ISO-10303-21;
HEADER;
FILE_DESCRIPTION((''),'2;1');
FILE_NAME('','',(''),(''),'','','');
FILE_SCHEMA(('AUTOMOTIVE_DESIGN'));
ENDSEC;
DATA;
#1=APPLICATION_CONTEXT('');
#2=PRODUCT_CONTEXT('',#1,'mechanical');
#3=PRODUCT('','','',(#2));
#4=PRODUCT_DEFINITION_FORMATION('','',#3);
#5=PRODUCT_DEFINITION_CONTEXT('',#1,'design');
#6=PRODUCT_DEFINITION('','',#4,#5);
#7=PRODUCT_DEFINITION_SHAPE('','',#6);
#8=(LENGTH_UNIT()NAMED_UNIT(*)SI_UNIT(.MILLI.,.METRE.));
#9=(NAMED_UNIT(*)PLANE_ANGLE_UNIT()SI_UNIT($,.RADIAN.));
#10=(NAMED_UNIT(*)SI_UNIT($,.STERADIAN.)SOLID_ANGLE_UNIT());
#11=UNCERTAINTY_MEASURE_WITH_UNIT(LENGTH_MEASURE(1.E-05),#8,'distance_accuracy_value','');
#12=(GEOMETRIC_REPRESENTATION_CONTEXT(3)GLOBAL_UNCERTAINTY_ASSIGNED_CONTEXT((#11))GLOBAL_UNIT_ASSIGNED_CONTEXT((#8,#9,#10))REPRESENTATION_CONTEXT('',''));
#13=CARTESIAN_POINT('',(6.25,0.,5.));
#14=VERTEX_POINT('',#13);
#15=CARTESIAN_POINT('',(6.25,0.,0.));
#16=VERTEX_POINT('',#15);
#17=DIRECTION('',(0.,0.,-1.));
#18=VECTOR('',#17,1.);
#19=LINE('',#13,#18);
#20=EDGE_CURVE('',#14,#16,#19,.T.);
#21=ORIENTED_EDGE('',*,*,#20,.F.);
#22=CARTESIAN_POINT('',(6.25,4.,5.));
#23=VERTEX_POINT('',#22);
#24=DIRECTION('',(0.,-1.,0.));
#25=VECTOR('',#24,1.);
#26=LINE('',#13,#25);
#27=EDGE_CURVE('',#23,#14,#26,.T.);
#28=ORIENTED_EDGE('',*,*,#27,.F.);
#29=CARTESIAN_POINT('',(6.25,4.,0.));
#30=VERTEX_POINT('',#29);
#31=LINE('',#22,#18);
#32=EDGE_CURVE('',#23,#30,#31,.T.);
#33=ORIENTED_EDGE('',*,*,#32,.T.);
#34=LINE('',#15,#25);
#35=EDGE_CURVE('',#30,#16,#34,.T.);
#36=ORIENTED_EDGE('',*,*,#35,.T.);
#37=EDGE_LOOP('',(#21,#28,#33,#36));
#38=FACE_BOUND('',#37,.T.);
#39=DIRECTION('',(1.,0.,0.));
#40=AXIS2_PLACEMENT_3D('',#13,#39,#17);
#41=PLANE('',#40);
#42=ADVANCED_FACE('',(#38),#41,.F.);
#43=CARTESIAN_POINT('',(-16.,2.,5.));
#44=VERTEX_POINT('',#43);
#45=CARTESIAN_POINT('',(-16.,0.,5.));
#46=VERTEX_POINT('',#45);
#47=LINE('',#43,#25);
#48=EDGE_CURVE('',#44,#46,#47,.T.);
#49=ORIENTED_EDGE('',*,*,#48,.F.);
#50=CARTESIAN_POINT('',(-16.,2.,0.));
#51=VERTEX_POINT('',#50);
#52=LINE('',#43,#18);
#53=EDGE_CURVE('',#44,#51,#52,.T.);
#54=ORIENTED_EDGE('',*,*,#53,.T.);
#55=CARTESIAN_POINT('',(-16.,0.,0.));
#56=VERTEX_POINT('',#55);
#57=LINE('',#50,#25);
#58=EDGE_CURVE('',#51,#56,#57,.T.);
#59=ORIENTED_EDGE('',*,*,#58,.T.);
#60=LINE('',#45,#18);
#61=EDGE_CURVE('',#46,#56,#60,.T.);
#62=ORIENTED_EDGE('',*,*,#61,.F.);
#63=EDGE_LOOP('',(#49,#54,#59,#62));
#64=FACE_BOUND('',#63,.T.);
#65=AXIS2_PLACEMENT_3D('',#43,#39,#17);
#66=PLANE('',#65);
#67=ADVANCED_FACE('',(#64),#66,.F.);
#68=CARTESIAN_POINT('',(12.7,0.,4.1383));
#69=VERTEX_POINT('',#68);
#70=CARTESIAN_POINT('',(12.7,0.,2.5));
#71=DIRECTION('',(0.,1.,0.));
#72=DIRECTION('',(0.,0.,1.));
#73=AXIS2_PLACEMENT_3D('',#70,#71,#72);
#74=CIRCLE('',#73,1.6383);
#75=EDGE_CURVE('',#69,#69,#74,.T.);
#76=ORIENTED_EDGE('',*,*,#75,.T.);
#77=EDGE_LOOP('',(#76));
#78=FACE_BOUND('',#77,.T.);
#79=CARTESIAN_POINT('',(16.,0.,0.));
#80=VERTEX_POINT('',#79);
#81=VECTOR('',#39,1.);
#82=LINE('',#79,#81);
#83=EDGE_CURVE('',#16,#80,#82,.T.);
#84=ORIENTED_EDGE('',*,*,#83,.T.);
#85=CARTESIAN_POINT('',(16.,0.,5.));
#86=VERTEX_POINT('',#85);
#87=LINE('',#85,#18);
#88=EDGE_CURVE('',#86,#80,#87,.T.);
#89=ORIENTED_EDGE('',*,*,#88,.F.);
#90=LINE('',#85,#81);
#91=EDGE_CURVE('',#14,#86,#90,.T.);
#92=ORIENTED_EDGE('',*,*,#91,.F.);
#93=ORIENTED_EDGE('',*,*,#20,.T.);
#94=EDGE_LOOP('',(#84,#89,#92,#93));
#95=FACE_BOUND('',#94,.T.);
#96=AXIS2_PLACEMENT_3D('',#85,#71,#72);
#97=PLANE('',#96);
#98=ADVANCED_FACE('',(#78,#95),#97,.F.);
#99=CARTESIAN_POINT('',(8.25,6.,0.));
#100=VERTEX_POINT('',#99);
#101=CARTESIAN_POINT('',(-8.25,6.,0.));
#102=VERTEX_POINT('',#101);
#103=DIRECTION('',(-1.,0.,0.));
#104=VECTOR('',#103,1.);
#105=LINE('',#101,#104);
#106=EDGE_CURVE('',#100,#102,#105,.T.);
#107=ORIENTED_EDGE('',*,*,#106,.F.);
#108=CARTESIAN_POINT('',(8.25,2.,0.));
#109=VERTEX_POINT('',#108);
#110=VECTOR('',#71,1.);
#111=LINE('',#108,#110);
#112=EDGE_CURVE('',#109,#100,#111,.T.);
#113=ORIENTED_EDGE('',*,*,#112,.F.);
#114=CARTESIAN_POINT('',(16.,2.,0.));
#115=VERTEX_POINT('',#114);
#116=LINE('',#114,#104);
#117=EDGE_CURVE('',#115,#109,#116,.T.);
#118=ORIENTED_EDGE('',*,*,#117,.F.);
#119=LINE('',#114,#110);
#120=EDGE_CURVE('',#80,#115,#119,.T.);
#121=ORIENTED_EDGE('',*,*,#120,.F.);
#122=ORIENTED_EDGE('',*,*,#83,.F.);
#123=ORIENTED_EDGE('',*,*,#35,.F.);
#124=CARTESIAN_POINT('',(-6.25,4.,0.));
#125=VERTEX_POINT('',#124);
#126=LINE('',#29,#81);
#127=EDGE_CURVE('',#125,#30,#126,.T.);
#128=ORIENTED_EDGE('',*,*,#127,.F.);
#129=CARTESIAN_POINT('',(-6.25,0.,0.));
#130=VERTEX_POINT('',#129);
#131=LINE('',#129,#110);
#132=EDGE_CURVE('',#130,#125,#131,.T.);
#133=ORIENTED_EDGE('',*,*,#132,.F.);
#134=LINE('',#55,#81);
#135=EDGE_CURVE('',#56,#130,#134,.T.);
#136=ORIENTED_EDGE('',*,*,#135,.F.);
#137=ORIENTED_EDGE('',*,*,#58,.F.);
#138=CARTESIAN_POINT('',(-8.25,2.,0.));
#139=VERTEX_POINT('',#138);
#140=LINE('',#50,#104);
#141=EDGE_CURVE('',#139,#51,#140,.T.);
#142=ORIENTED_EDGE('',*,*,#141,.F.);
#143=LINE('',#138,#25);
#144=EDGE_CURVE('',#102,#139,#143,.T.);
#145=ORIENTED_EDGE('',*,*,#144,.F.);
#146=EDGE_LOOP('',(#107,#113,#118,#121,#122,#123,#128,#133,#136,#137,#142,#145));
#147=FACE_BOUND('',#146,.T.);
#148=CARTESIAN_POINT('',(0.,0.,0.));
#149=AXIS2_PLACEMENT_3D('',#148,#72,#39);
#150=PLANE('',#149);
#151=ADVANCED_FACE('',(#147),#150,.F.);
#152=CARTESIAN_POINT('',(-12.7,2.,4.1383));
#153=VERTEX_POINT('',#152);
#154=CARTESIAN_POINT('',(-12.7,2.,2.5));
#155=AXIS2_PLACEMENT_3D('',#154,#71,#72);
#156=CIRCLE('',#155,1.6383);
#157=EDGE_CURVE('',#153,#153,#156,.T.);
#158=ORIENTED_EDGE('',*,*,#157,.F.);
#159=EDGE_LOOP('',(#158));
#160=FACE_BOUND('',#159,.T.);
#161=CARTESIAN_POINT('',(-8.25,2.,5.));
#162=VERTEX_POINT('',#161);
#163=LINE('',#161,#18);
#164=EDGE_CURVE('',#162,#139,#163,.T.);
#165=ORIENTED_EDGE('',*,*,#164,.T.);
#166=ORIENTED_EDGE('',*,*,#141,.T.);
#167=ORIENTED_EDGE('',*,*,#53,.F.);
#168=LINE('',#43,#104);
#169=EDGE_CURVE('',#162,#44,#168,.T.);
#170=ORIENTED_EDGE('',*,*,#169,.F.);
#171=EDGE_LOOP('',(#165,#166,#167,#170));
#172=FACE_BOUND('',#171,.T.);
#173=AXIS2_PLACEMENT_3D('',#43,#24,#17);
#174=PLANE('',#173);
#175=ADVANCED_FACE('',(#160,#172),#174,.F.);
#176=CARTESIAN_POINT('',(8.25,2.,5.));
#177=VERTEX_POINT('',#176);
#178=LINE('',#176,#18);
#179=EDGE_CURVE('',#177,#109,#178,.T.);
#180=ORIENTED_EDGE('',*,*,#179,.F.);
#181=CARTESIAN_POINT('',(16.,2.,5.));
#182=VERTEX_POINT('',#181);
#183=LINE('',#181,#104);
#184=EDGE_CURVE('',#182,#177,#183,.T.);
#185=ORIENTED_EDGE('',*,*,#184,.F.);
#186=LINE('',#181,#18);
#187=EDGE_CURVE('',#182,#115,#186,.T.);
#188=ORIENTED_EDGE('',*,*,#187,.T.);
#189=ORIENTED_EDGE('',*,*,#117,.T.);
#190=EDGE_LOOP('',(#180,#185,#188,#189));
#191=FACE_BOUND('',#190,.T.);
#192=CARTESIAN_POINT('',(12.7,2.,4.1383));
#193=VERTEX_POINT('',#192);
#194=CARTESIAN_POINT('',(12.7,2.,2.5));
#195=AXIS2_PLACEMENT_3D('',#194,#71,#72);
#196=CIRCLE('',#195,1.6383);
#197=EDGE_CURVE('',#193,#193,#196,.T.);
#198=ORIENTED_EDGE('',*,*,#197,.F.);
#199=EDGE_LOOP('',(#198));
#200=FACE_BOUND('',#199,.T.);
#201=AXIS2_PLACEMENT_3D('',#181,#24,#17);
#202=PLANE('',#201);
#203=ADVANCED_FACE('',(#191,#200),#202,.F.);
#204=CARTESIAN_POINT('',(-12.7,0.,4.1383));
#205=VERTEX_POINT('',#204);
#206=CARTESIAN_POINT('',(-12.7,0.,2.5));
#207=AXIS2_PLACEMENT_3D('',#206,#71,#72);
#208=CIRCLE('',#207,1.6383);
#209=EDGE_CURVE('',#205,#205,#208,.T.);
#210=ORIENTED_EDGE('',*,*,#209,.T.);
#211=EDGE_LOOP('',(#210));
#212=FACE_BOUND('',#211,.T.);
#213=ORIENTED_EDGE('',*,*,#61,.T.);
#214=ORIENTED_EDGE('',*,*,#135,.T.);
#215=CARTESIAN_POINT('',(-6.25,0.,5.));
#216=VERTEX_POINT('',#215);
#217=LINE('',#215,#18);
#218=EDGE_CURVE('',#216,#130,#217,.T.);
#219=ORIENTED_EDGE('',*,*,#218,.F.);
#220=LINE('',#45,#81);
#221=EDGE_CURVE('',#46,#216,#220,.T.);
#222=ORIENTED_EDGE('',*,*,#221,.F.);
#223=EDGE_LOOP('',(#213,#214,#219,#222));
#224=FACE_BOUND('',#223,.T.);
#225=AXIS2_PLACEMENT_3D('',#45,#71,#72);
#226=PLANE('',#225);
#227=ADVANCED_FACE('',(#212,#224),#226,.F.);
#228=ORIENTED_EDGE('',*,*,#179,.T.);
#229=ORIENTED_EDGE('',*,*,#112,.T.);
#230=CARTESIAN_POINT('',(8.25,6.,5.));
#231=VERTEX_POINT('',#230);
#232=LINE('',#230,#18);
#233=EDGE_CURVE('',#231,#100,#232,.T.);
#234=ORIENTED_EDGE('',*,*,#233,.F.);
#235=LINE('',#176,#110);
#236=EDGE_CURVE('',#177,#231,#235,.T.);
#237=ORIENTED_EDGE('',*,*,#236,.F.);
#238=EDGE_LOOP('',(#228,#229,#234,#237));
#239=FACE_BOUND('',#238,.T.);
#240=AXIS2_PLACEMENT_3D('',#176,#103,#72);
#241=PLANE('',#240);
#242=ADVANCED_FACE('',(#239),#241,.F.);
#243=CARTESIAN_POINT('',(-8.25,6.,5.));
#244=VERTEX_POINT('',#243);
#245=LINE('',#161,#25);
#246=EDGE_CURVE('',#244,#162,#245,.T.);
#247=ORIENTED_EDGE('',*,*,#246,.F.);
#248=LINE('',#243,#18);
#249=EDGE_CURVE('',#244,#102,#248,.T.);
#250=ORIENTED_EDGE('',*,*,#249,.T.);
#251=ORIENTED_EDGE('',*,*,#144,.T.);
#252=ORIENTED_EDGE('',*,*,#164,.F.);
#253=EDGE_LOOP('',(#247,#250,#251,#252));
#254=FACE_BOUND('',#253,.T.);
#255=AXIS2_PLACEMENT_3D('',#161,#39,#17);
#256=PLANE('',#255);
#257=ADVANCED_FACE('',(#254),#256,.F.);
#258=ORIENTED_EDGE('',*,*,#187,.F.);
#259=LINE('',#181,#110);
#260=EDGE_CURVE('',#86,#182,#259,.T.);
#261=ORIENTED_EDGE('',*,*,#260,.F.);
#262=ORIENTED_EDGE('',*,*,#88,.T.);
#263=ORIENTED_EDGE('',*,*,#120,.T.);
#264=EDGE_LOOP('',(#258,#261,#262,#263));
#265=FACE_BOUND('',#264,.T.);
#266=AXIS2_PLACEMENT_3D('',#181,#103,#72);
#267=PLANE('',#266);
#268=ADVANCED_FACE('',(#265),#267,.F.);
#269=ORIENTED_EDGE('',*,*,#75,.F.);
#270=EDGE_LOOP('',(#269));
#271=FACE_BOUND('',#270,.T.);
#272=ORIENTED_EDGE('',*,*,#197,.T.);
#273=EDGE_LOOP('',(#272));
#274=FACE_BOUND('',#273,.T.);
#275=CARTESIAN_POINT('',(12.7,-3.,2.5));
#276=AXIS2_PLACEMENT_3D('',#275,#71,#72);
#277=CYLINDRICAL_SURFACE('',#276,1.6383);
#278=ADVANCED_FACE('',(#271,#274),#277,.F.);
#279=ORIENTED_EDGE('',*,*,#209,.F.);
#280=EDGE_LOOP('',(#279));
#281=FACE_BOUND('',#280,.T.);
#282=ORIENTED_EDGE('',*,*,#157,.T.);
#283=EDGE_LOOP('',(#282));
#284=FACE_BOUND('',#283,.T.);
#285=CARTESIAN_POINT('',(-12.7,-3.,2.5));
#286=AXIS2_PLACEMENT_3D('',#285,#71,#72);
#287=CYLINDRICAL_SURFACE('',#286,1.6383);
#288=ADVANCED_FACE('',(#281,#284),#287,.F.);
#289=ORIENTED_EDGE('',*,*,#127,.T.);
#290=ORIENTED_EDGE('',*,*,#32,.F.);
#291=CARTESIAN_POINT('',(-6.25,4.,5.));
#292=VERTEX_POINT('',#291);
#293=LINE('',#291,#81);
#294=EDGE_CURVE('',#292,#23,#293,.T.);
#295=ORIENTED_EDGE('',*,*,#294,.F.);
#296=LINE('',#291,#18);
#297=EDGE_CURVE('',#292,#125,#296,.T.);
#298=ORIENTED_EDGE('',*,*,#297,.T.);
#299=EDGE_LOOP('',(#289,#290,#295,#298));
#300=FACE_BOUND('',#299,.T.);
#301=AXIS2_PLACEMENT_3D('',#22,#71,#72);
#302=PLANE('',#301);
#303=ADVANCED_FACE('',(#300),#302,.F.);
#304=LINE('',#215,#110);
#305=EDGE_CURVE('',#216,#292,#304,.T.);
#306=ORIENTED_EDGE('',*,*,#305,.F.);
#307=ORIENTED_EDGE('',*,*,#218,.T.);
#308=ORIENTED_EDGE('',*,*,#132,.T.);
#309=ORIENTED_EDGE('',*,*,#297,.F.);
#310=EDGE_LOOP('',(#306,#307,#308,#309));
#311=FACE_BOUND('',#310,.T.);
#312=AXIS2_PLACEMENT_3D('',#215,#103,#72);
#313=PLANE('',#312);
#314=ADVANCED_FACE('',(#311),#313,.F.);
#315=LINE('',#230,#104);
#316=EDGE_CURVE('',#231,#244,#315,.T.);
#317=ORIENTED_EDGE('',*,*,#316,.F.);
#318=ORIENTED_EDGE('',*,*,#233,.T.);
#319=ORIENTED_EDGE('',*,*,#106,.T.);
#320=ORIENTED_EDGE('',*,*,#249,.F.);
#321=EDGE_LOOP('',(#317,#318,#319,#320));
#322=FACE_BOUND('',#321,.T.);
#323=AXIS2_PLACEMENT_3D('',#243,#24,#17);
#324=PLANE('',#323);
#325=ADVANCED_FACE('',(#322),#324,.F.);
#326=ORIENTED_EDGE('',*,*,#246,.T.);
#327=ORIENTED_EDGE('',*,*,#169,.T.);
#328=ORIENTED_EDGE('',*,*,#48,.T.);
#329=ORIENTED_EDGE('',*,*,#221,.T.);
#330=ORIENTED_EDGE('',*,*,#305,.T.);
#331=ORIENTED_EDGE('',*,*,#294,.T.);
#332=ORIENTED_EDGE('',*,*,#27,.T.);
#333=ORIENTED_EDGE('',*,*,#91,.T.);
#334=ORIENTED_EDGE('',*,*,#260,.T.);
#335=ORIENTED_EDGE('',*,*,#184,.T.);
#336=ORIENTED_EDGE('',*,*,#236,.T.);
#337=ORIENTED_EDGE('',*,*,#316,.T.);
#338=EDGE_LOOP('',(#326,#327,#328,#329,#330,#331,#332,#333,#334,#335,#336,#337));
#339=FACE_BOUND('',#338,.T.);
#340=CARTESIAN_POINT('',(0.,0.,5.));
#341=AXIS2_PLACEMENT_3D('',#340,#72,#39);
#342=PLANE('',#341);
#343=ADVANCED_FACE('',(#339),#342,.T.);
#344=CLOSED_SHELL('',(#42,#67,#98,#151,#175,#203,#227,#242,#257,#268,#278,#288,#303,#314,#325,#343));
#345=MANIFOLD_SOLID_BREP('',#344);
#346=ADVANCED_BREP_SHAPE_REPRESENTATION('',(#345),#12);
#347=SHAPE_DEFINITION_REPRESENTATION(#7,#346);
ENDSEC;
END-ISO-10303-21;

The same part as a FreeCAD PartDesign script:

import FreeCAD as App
import Part
import Sketcher
from FreeCAD import Vector


def add_polygon(sketch, points):
    """Adds a closed chain of lines whose ends are joined by coincident constraints."""
    first, n = sketch.GeometryCount, len(points)
    for a, b in zip(points, points[1:] + points[:1]):
        sketch.addGeometry(Part.LineSegment(App.Vector(*a, 0), App.Vector(*b, 0)), False)
    for i in range(n):
        sketch.addConstraint(Sketcher.Constraint("Coincident", first + i, 2, first + (i + 1) % n, 1))

doc = App.newDocument("Part")
params = doc.addObject("Spreadsheet::Sheet", "Params")
for row, (alias, value) in enumerate([
    ("sketch1_height", "4 mm"),
    ("sketch1_height2", "2 mm"),
    ("sketch1_width", "12.5 mm"),
    ("sketch1_width2", "16.5 mm"),
    ("pad1_length", "5 mm"),
    ("pocket1_length", "5 mm"),
], start=1):
    params.set(f"A{row}", alias)
    params.set(f"B{row}", "=" + value)
    params.setAlias(f"B{row}", alias)

body = doc.addObject("PartDesign::Body", "Body")

sketch1 = body.newObject("Sketcher::SketchObject", "Sketch")
sketch1.AttachmentSupport = (doc.getObject("XY_Plane"), [""])
sketch1.MapMode = "FlatFace"
add_polygon(sketch1, [(-16, 0), (-6.2, 0), (-6.2, 4), (6.2, 4), (6.2, 0), (16, 0), (16, 2), (8.2, 2), (8.2, 6), (-8.2, 6), (-8.2, 2), (-16, 2)])
sketch1.addConstraint([
    Sketcher.Constraint("Horizontal", 0),
    Sketcher.Constraint("Vertical", 1),
    Sketcher.Constraint("Horizontal", 2),
    Sketcher.Constraint("Vertical", 3),
    Sketcher.Constraint("Horizontal", 4),
    Sketcher.Constraint("Vertical", 5),
    Sketcher.Constraint("Horizontal", 6),
    Sketcher.Constraint("Vertical", 7),
    Sketcher.Constraint("Horizontal", 8),
    Sketcher.Constraint("Vertical", 9),
    Sketcher.Constraint("Horizontal", 10),
    Sketcher.Constraint("Vertical", 11),
    Sketcher.Constraint("Symmetric", 0, 2, 3, 2, -1, 1),
    Sketcher.Constraint("Symmetric", 6, 2, 9, 2, -2),
    Sketcher.Constraint("Symmetric", 4, 2, 11, 2, -2),
    Sketcher.Constraint("Equal", 3, 7),
    Sketcher.Constraint("DistanceY", 1, 1, 1, 2, 4.0),
    Sketcher.Constraint("DistanceY", 5, 1, 5, 2, 2.0),
    Sketcher.Constraint("DistanceX", 2, 1, 2, 2, 12.5),
    Sketcher.Constraint("DistanceX", 8, 2, 8, 1, 16.5),
    Sketcher.Constraint("DistanceX", -1, 1, 4, 2, 16.0),
])
sketch1.setExpression("Constraints[28]", "Params.sketch1_height")
sketch1.setExpression("Constraints[29]", "Params.sketch1_height2")
sketch1.setExpression("Constraints[30]", "Params.sketch1_width")
sketch1.setExpression("Constraints[31]", "Params.sketch1_width2")
pad1 = body.newObject("PartDesign::Pad", "Pad")
pad1.Profile = sketch1
pad1.setExpression("Length", "Params.pad1_length")

sketch2 = body.newObject("Sketcher::SketchObject", "Sketch001")
sketch2.AttachmentSupport = (doc.getObject("XZ_Plane"), [""])
sketch2.MapMode = "FlatFace"
sketch2.AttachmentOffset = App.Placement(Vector(0, 0, -2), App.Rotation())
sketch2.addGeometry([
    Part.Circle(Vector(-12.7, 2.5, 0), Vector(0, 0, 1), 1.6),
    Part.Circle(Vector(12.7, 2.5, 0), Vector(0, 0, 1), 1.6),
], False)
sketch2.addConstraint([
    Sketcher.Constraint("Equal", 0, 1),
    Sketcher.Constraint("Symmetric", 0, 3, 1, 3, -2),
    Sketcher.Constraint("Diameter", 0, 3.2766),
    Sketcher.Constraint("DistanceX", 0, 3, -1, 1, 12.7),
    Sketcher.Constraint("DistanceY", -1, 1, 0, 3, 2.5),
])
pocket1 = body.newObject("PartDesign::Pocket", "Pocket")
pocket1.Profile = sketch2
pocket1.setExpression("Length", "Params.pocket1_length")
pocket1.Reversed = True

doc.recompute()
